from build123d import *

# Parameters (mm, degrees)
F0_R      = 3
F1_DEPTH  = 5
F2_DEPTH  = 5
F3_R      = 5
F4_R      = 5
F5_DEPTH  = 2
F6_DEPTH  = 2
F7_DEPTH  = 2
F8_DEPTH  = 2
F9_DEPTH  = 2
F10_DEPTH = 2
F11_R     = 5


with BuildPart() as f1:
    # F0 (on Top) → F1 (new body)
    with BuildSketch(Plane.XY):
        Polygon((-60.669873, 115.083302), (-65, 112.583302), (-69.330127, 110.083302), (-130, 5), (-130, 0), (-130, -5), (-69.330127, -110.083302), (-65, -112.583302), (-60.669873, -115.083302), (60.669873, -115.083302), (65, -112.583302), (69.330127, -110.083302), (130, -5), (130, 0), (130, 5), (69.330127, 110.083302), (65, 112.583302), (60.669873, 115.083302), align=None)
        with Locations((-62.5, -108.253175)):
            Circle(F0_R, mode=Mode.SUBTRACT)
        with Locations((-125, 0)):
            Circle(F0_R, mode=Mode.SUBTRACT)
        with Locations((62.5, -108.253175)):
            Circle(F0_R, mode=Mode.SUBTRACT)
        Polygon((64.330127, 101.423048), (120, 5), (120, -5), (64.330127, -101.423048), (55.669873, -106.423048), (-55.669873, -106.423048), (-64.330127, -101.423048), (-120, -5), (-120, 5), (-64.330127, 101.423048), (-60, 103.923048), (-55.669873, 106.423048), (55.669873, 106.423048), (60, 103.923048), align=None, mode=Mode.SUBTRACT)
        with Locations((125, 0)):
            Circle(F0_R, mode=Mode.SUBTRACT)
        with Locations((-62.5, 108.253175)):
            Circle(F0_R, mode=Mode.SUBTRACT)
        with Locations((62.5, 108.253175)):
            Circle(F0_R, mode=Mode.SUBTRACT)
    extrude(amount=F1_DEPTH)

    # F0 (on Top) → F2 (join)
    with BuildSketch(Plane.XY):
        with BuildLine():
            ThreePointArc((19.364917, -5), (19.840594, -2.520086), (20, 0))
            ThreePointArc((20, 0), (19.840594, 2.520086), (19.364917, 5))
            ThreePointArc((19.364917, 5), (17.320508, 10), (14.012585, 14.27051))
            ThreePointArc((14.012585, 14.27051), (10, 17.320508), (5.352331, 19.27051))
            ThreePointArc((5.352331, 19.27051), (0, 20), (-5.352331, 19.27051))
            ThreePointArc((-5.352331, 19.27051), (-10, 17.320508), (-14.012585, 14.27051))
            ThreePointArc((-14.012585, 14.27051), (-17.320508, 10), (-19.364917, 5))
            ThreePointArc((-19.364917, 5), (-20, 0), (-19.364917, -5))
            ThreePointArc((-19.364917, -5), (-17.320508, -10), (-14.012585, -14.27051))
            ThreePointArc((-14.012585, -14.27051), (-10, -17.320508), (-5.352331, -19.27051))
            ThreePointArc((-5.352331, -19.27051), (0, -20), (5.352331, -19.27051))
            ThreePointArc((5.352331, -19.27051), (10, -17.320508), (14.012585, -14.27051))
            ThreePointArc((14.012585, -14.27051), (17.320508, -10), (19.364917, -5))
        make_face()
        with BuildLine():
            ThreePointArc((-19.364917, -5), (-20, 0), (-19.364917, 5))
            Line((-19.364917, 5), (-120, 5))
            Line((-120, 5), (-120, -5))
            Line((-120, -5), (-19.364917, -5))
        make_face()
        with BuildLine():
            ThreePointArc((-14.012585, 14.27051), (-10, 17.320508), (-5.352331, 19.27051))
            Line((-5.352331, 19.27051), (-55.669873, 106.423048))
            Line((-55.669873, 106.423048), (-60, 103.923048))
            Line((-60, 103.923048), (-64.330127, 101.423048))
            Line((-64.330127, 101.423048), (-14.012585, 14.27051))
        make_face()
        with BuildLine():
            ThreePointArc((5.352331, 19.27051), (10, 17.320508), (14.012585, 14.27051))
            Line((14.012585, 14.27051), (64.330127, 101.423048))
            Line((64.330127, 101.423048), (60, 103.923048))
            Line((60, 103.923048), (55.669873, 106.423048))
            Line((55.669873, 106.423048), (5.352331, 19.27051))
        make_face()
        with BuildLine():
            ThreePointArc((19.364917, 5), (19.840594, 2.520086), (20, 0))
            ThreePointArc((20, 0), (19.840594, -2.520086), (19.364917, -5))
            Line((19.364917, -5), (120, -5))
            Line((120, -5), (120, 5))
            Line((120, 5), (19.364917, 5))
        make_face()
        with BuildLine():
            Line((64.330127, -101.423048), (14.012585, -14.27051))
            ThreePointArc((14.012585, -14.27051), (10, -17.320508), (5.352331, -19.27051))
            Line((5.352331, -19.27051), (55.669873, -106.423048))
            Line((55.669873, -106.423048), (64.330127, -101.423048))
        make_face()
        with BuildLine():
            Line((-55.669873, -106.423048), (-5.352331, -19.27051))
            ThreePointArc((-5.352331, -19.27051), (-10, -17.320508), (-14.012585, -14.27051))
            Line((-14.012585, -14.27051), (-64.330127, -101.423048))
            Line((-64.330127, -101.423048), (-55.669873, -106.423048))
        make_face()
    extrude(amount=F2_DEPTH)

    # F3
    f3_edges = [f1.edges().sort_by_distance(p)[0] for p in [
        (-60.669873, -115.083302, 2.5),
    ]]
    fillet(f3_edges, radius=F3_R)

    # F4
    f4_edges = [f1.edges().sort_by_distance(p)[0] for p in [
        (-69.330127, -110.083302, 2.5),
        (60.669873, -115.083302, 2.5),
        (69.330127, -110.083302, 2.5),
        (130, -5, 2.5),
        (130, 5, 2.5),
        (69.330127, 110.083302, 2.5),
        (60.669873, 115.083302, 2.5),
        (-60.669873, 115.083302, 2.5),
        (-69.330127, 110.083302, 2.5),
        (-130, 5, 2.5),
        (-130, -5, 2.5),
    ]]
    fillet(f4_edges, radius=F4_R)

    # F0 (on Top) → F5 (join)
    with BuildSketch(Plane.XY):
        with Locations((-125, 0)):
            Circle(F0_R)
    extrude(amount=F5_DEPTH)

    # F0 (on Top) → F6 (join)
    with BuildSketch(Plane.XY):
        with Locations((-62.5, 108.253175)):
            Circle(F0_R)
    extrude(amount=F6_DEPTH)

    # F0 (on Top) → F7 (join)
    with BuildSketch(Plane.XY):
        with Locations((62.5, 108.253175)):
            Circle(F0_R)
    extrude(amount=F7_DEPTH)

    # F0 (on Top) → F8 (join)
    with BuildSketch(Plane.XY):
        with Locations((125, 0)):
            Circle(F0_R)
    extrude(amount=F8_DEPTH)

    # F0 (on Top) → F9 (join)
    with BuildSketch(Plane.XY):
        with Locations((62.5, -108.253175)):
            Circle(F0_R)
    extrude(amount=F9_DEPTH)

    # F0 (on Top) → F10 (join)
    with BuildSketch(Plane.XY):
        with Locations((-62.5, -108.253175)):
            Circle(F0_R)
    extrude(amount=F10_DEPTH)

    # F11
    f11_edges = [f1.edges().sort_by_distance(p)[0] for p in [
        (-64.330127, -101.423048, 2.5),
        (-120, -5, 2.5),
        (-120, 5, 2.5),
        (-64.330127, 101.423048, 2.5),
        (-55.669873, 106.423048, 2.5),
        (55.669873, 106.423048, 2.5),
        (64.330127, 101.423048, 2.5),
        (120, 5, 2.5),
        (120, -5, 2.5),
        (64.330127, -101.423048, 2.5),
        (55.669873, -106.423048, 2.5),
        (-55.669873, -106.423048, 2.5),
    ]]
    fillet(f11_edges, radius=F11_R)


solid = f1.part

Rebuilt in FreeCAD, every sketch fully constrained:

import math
import FreeCAD as App
import Part
import Sketcher
from FreeCAD import Vector
Q = App.Units.Quantity


def edges_at(feature, points):
    """Names of the edges that pass closest to the given points."""
    edges = feature.Shape.Edges
    near = lambda p: min(range(len(edges)), key=lambda i: edges[i].distToShape(Part.Vertex(*p))[0])
    return sorted({f"Edge{near(p) + 1}" for p in points})


def add_polygon(sketch, points):
    """Adds a closed chain of lines whose ends are joined by coincident constraints."""
    first, n = sketch.GeometryCount, len(points)
    for a, b in zip(points, points[1:] + points[:1]):
        sketch.addGeometry(Part.LineSegment(App.Vector(*a, 0), App.Vector(*b, 0)), False)
    for i in range(n):
        sketch.addConstraint(Sketcher.Constraint("Coincident", first + i, 2, first + (i + 1) % n, 1))

doc = App.newDocument("Part")
body = doc.addObject("PartDesign::Body", "Body")

# Sketch on XY plane
sketch1 = body.newObject("Sketcher::SketchObject", "Sketch")
sketch1.AttachmentSupport = (doc.getObject("XY_Plane"), [""])
sketch1.MapMode = "FlatFace"
add_polygon(sketch1, [(-60.7, 115.1), (-69.3, 110.1), (-130, 5), (-130, -5), (-69.3, -110.1), (-60.7, -115.1), (60.7, -115.1), (69.3, -110.1), (130, -5), (130, 5), (69.3, 110.1), (60.7, 115.1)])  # lines 0-11
sketch1.addGeometry(Part.Circle(Vector(-62.5, -108.3, 0), Vector(0, 0, 1), 3), False)  # 12
sketch1.addGeometry(Part.Circle(Vector(62.5, -108.3, 0), Vector(0, 0, 1), 3), False)  # 13
sketch1.addGeometry(Part.Circle(Vector(-125, 0, 0), Vector(0, 0, 1), 3), False)  # 14
sketch1.addGeometry(Part.Circle(Vector(-62.5, 108.3, 0), Vector(0, 0, 1), 3), False)  # 15
add_polygon(sketch1, [(55.7, 106.4), (64.3, 101.4), (120, 5), (120, -5), (64.3, -101.4), (55.7, -106.4), (-55.7, -106.4), (-64.3, -101.4), (-120, -5), (-120, 5), (-64.3, 101.4), (-55.7, 106.4)])  # lines 16-27
sketch1.addGeometry(Part.Circle(Vector(125, 0, 0), Vector(0, 0, 1), 3), False)  # 28
sketch1.addGeometry(Part.Circle(Vector(62.5, 108.3, 0), Vector(0, 0, 1), 3), False)  # 29
sketch1.addConstraint(Sketcher.Constraint("Vertical", 2))
sketch1.addConstraint(Sketcher.Constraint("Horizontal", 5))
sketch1.addConstraint(Sketcher.Constraint("Vertical", 8))
sketch1.addConstraint(Sketcher.Constraint("Horizontal", 11))
sketch1.addConstraint(Sketcher.Constraint("Vertical", 18))
sketch1.addConstraint(Sketcher.Constraint("Horizontal", 21))
sketch1.addConstraint(Sketcher.Constraint("Vertical", 24))
sketch1.addConstraint(Sketcher.Constraint("Horizontal", 27))
sketch1.addConstraint(Sketcher.Constraint("Equal", 12, 13))
sketch1.addConstraint(Sketcher.Constraint("Equal", 13, 14))
sketch1.addConstraint(Sketcher.Constraint("Equal", 14, 15))
sketch1.addConstraint(Sketcher.Constraint("Equal", 15, 28))
sketch1.addConstraint(Sketcher.Constraint("Equal", 28, 29))
sketch1.addConstraint(Sketcher.Constraint("Symmetric", 13, 3, 15, 3, -1, 1))
sketch1.addConstraint(Sketcher.Constraint("Symmetric", 14, 3, 28, 3, -1, 1))
sketch1.addConstraint(Sketcher.Constraint("Symmetric", 12, 3, 29, 3, -1, 1))
sketch1.addConstraint(Sketcher.Constraint("Symmetric", 0, 2, 6, 2, -1, 1))
sketch1.addConstraint(Sketcher.Constraint("Symmetric", 1, 2, 7, 2, -1, 1))
sketch1.addConstraint(Sketcher.Constraint("Symmetric", 3, 2, 9, 2, -1, 1))
sketch1.addConstraint(Sketcher.Constraint("Symmetric", 4, 2, 10, 2, -1, 1))
sketch1.addConstraint(Sketcher.Constraint("Symmetric", 16, 2, 22, 2, -1, 1))
sketch1.addConstraint(Sketcher.Constraint("Symmetric", 17, 2, 23, 2, -1, 1))
sketch1.addConstraint(Sketcher.Constraint("Symmetric", 19, 2, 25, 2, -1, 1))
sketch1.addConstraint(Sketcher.Constraint("Symmetric", 20, 2, 26, 2, -1, 1))
sketch1.addConstraint(Sketcher.Constraint("Symmetric", 12, 3, 13, 3, -2))
sketch1.addConstraint(Sketcher.Constraint("Symmetric", 3, 2, 6, 2, -2))
sketch1.addConstraint(Sketcher.Constraint("Symmetric", 19, 2, 22, 2, -2))
sketch1.addConstraint(Sketcher.Constraint("PointOnObject", 14, 3, -1))
sketch1.addConstraint(Sketcher.Constraint("Perpendicular", 0, 3))
sketch1.addConstraint(Sketcher.Constraint("Perpendicular", 1, 4))
sketch1.addConstraint(Sketcher.Constraint("Perpendicular", 3, 6))
sketch1.addConstraint(Sketcher.Constraint("Perpendicular", 6, 9))
sketch1.addConstraint(Sketcher.Constraint("Parallel", 10, 16))
sketch1.addConstraint(Sketcher.Constraint("Parallel", 9, 17))
sketch1.addConstraint(Sketcher.Constraint("Perpendicular", 16, 19))
sketch1.addConstraint(Sketcher.Constraint("Perpendicular", 17, 20))
sketch1.addConstraint(Sketcher.Constraint("Perpendicular", 19, 22))
sketch1.addConstraint(Sketcher.Constraint("Perpendicular", 22, 25))
sketch1.addConstraint(Sketcher.Constraint("Horizontal", 2, 2, 7, 2))
sketch1.addConstraint(Sketcher.Constraint("Horizontal", 8, 2, 17, 2))
sketch1.addConstraint(Sketcher.Constraint("Equal", 10, 16))
sketch1.addConstraint(Sketcher.Constraint("Diameter", 12, 6.0))
sketch1.addConstraint(Sketcher.Constraint("DistanceY", 2, 2, 2, 1, 10.0))
sketch1.addConstraint(Sketcher.Constraint("Angle", 0, Q("-150 deg")))
sketch1.addConstraint(Sketcher.Constraint("Distance", 0, 10.0))
sketch1.addConstraint(Sketcher.Constraint("DistanceX", 14, 3, -1, 1, 125.0))
sketch1.addConstraint(Sketcher.Constraint("DistanceX", 1, 2, -1, 1, 130.0))
sketch1.addConstraint(Sketcher.Constraint("DistanceX", -1, 1, 17, 2, 120.0))
sketch1.addConstraint(Sketcher.Constraint("DistanceX", 12, 3, 13, 3, 125.0))
sketch1.addConstraint(Sketcher.Constraint("DistanceX", 3, 2, 5, 2, 130.0))
sketch1.addConstraint(Sketcher.Constraint("DistanceX", 16, 2, 9, 2, 5.0))
sketch1.addConstraint(Sketcher.Constraint("DistanceY", 12, 3, 15, 3, 216.50635))
pad1 = body.newObject("PartDesign::Pad", "Pad")
pad1.Profile = sketch1
pad1.Length = 5

# Sketch on XY plane
sketch2 = body.newObject("Sketcher::SketchObject", "Sketch001")
sketch2.AttachmentSupport = (doc.getObject("XY_Plane"), [""])
sketch2.MapMode = "FlatFace"
sketch2.addGeometry(Part.ArcOfCircle(Part.Circle(Vector(0, 0, 0), Vector(0, 0, 1), 20), math.radians(14), math.radians(46)), False)
sketch2.addGeometry(Part.LineSegment(Vector(14, 14, 0), Vector(64, 101, 0)), False)
sketch2.addGeometry(Part.LineSegment(Vector(64, 101, 0), Vector(56, 106, 0)), False)
sketch2.addGeometry(Part.LineSegment(Vector(56, 106, 0), Vector(5, 19, 0)), False)
sketch2.addGeometry(Part.ArcOfCircle(Part.Circle(Vector(0, 0, 0), Vector(0, 0, 1), 20), math.radians(74), math.radians(106)), False)
sketch2.addGeometry(Part.LineSegment(Vector(-5, 19, 0), Vector(-56, 106, 0)), False)
sketch2.addGeometry(Part.LineSegment(Vector(-56, 106, 0), Vector(-64, 101, 0)), False)
sketch2.addGeometry(Part.LineSegment(Vector(-64, 101, 0), Vector(-14, 14, 0)), False)
sketch2.addGeometry(Part.ArcOfCircle(Part.Circle(Vector(0, 0, 0), Vector(0, 0, 1), 20), math.radians(134), math.radians(166)), False)
sketch2.addGeometry(Part.LineSegment(Vector(-19, 5, 0), Vector(-120, 5, 0)), False)
sketch2.addGeometry(Part.LineSegment(Vector(-120, 5, 0), Vector(-120, -5, 0)), False)
sketch2.addGeometry(Part.LineSegment(Vector(-120, -5, 0), Vector(-19, -5, 0)), False)
sketch2.addGeometry(Part.ArcOfCircle(Part.Circle(Vector(0, 0, 0), Vector(0, 0, 1), 20), math.radians(-166), math.radians(-134)), False)
sketch2.addGeometry(Part.LineSegment(Vector(-14, -14, 0), Vector(-64, -101, 0)), False)
sketch2.addGeometry(Part.LineSegment(Vector(-64, -101, 0), Vector(-56, -106, 0)), False)
sketch2.addGeometry(Part.LineSegment(Vector(-56, -106, 0), Vector(-5, -19, 0)), False)
sketch2.addGeometry(Part.ArcOfCircle(Part.Circle(Vector(0, 0, 0), Vector(0, 0, 1), 20), math.radians(-106), math.radians(-74)), False)
sketch2.addGeometry(Part.LineSegment(Vector(5, -19, 0), Vector(56, -106, 0)), False)
sketch2.addGeometry(Part.LineSegment(Vector(56, -106, 0), Vector(64, -101, 0)), False)
sketch2.addGeometry(Part.LineSegment(Vector(64, -101, 0), Vector(14, -14, 0)), False)
sketch2.addGeometry(Part.ArcOfCircle(Part.Circle(Vector(0, 0, 0), Vector(0, 0, 1), 20), math.radians(-46), math.radians(-14)), False)
sketch2.addGeometry(Part.LineSegment(Vector(19, -5, 0), Vector(120, -5, 0)), False)
sketch2.addGeometry(Part.LineSegment(Vector(120, -5, 0), Vector(120, 5, 0)), False)
sketch2.addGeometry(Part.LineSegment(Vector(120, 5, 0), Vector(19, 5, 0)), False)
sketch2.addConstraint(Sketcher.Constraint("Coincident", 0, 2, 1, 1))
sketch2.addConstraint(Sketcher.Constraint("Coincident", 1, 2, 2, 1))
sketch2.addConstraint(Sketcher.Constraint("Coincident", 2, 2, 3, 1))
sketch2.addConstraint(Sketcher.Constraint("Coincident", 3, 2, 4, 1))
sketch2.addConstraint(Sketcher.Constraint("Coincident", 4, 2, 5, 1))
sketch2.addConstraint(Sketcher.Constraint("Coincident", 5, 2, 6, 1))
sketch2.addConstraint(Sketcher.Constraint("Coincident", 6, 2, 7, 1))
sketch2.addConstraint(Sketcher.Constraint("Coincident", 7, 2, 8, 1))
sketch2.addConstraint(Sketcher.Constraint("Coincident", 8, 2, 9, 1))
sketch2.addConstraint(Sketcher.Constraint("Coincident", 9, 2, 10, 1))
sketch2.addConstraint(Sketcher.Constraint("Coincident", 10, 2, 11, 1))
sketch2.addConstraint(Sketcher.Constraint("Coincident", 11, 2, 12, 1))
sketch2.addConstraint(Sketcher.Constraint("Coincident", 12, 2, 13, 1))
sketch2.addConstraint(Sketcher.Constraint("Coincident", 13, 2, 14, 1))
sketch2.addConstraint(Sketcher.Constraint("Coincident", 14, 2, 15, 1))
sketch2.addConstraint(Sketcher.Constraint("Coincident", 15, 2, 16, 1))
sketch2.addConstraint(Sketcher.Constraint("Coincident", 16, 2, 17, 1))
sketch2.addConstraint(Sketcher.Constraint("Coincident", 17, 2, 18, 1))
sketch2.addConstraint(Sketcher.Constraint("Coincident", 18, 2, 19, 1))
sketch2.addConstraint(Sketcher.Constraint("Coincident", 19, 2, 20, 1))
sketch2.addConstraint(Sketcher.Constraint("Coincident", 20, 2, 21, 1))
sketch2.addConstraint(Sketcher.Constraint("Coincident", 21, 2, 22, 1))
sketch2.addConstraint(Sketcher.Constraint("Coincident", 22, 2, 23, 1))
sketch2.addConstraint(Sketcher.Constraint("Coincident", 23, 2, 0, 1))
sketch2.addConstraint(Sketcher.Constraint("Horizontal", 9))
sketch2.addConstraint(Sketcher.Constraint("Vertical", 10))
sketch2.addConstraint(Sketcher.Constraint("Horizontal", 11))
sketch2.addConstraint(Sketcher.Constraint("Horizontal", 21))
sketch2.addConstraint(Sketcher.Constraint("Vertical", 22))
sketch2.addConstraint(Sketcher.Constraint("Horizontal", 23))
sketch2.addConstraint(Sketcher.Constraint("Coincident", 0, 3, -1, 1))
sketch2.addConstraint(Sketcher.Constraint("Coincident", 4, 3, -1, 1))
sketch2.addConstraint(Sketcher.Constraint("Coincident", 8, 3, -1, 1))
sketch2.addConstraint(Sketcher.Constraint("Coincident", 12, 3, -1, 1))
sketch2.addConstraint(Sketcher.Constraint("Coincident", 16, 3, -1, 1))
sketch2.addConstraint(Sketcher.Constraint("Coincident", 20, 3, -1, 1))
sketch2.addConstraint(Sketcher.Constraint("Equal", 0, 4))
sketch2.addConstraint(Sketcher.Constraint("Equal", 4, 8))
sketch2.addConstraint(Sketcher.Constraint("Equal", 8, 12))
sketch2.addConstraint(Sketcher.Constraint("Equal", 12, 16))
sketch2.addConstraint(Sketcher.Constraint("Equal", 16, 20))
sketch2.addConstraint(Sketcher.Constraint("Symmetric", 1, 2, 13, 2, -1, 1))
sketch2.addConstraint(Sketcher.Constraint("Symmetric", 2, 2, 14, 2, -1, 1))
sketch2.addConstraint(Sketcher.Constraint("Symmetric", 5, 2, 17, 2, -1, 1))
sketch2.addConstraint(Sketcher.Constraint("Symmetric", 6, 2, 18, 2, -1, 1))
sketch2.addConstraint(Sketcher.Constraint("Symmetric", 9, 2, 21, 2, -1, 1))
sketch2.addConstraint(Sketcher.Constraint("Symmetric", 2, 2, 5, 2, -2))
sketch2.addConstraint(Sketcher.Constraint("Symmetric", 1, 2, 6, 2, -2))
sketch2.addConstraint(Sketcher.Constraint("Perpendicular", 1, 2))
sketch2.addConstraint(Sketcher.Constraint("Perpendicular", 2, 3))
sketch2.addConstraint(Sketcher.Constraint("Perpendicular", 5, 6))
sketch2.addConstraint(Sketcher.Constraint("Perpendicular", 6, 7))
sketch2.addConstraint(Sketcher.Constraint("Parallel", 3, 13))
sketch2.addConstraint(Sketcher.Constraint("Perpendicular", 14, 15))
sketch2.addConstraint(Sketcher.Constraint("Parallel", 7, 17))
sketch2.addConstraint(Sketcher.Constraint("Perpendicular", 18, 19))
sketch2.addConstraint(Sketcher.Constraint("Horizontal", 11, 2, 20, 2))
sketch2.addConstraint(Sketcher.Constraint("Horizontal", 9, 2, 22, 2))
sketch2.addConstraint(Sketcher.Constraint("Equal", 1, 3))
sketch2.addConstraint(Sketcher.Constraint("Radius", 4, 20.000002))
sketch2.addConstraint(Sketcher.Constraint("DistanceY", 10, 2, 10, 1, 10.0))
sketch2.addConstraint(Sketcher.Constraint("Angle", 1, Q("60 deg")))
sketch2.addConstraint(Sketcher.Constraint("Distance", 2, 10.0))
sketch2.addConstraint(Sketcher.Constraint("DistanceX", 9, 2, -1, 1, 120.0))
sketch2.addConstraint(Sketcher.Constraint("DistanceX", 0, 2, 1, 2, 50.317542))
pad2 = body.newObject("PartDesign::Pad", "Pad001")
pad2.Profile = sketch2
pad2.Length = 5
doc.recompute()

fillet = body.newObject("PartDesign::Fillet", "Fillet")
fillet.Base = (pad2, edges_at(pad2, [(-60.67, -115.083, 2.5)]))
fillet.Radius = 5
doc.recompute()

fillet2 = body.newObject("PartDesign::Fillet", "Fillet001")
fillet2.Base = (fillet, edges_at(fillet, [
    (-69.33, -110.083, 2.5),
    (60.67, -115.083, 2.5),
    (69.33, -110.083, 2.5),
    (130, -5, 2.5),
    (130, 5, 2.5),
    (69.33, 110.083, 2.5),
    (60.67, 115.083, 2.5),
    (-60.67, 115.083, 2.5),
    (-69.33, 110.083, 2.5),
    (-130, 5, 2.5),
    (-130, -5, 2.5),
]))
fillet2.Radius = 5

# Sketch on XY plane
sketch3 = body.newObject("Sketcher::SketchObject", "Sketch002")
sketch3.AttachmentSupport = (doc.getObject("XY_Plane"), [""])
sketch3.MapMode = "FlatFace"
sketch3.addGeometry(Part.Circle(Vector(-125, 0, 0), Vector(0, 0, 1), 3), False)
sketch3.addConstraint(Sketcher.Constraint("PointOnObject", 0, 3, -1))
sketch3.addConstraint(Sketcher.Constraint("Diameter", 0, 6.0))
sketch3.addConstraint(Sketcher.Constraint("DistanceX", 0, 3, -1, 1, 125.0))
pad3 = body.newObject("PartDesign::Pad", "Pad002")
pad3.Profile = sketch3
pad3.Length = 2

# Sketch on XY plane
sketch4 = body.newObject("Sketcher::SketchObject", "Sketch003")
sketch4.AttachmentSupport = (doc.getObject("XY_Plane"), [""])
sketch4.MapMode = "FlatFace"
sketch4.addGeometry(Part.Circle(Vector(-62.5, 108.3, 0), Vector(0, 0, 1), 3), False)
sketch4.addConstraint(Sketcher.Constraint("Diameter", 0, 6.0))
sketch4.addConstraint(Sketcher.Constraint("DistanceX", 0, 3, -1, 1, 62.5))
sketch4.addConstraint(Sketcher.Constraint("DistanceY", -1, 1, 0, 3, 108.253175))
pad4 = body.newObject("PartDesign::Pad", "Pad003")
pad4.Profile = sketch4
pad4.Length = 2

# Sketch on XY plane
sketch5 = body.newObject("Sketcher::SketchObject", "Sketch004")
sketch5.AttachmentSupport = (doc.getObject("XY_Plane"), [""])
sketch5.MapMode = "FlatFace"
sketch5.addGeometry(Part.Circle(Vector(62.5, 108.3, 0), Vector(0, 0, 1), 3), False)
sketch5.addConstraint(Sketcher.Constraint("Diameter", 0, 6.0))
sketch5.addConstraint(Sketcher.Constraint("DistanceX", -1, 1, 0, 3, 62.5))
sketch5.addConstraint(Sketcher.Constraint("DistanceY", -1, 1, 0, 3, 108.253175))
pad5 = body.newObject("PartDesign::Pad", "Pad004")
pad5.Profile = sketch5
pad5.Length = 2

# Sketch on XY plane
sketch6 = body.newObject("Sketcher::SketchObject", "Sketch005")
sketch6.AttachmentSupport = (doc.getObject("XY_Plane"), [""])
sketch6.MapMode = "FlatFace"
sketch6.addGeometry(Part.Circle(Vector(125, 0, 0), Vector(0, 0, 1), 3), False)
sketch6.addConstraint(Sketcher.Constraint("PointOnObject", 0, 3, -1))
sketch6.addConstraint(Sketcher.Constraint("Diameter", 0, 6.0))
sketch6.addConstraint(Sketcher.Constraint("DistanceX", -1, 1, 0, 3, 125.0))
pad6 = body.newObject("PartDesign::Pad", "Pad005")
pad6.Profile = sketch6
pad6.Length = 2

# Sketch on XY plane
sketch7 = body.newObject("Sketcher::SketchObject", "Sketch006")
sketch7.AttachmentSupport = (doc.getObject("XY_Plane"), [""])
sketch7.MapMode = "FlatFace"
sketch7.addGeometry(Part.Circle(Vector(62.5, -108.3, 0), Vector(0, 0, 1), 3), False)
sketch7.addConstraint(Sketcher.Constraint("Diameter", 0, 6.0))
sketch7.addConstraint(Sketcher.Constraint("DistanceX", -1, 1, 0, 3, 62.5))
sketch7.addConstraint(Sketcher.Constraint("DistanceY", 0, 3, -1, 1, 108.253175))
pad7 = body.newObject("PartDesign::Pad", "Pad006")
pad7.Profile = sketch7
pad7.Length = 2

# Sketch on XY plane
sketch8 = body.newObject("Sketcher::SketchObject", "Sketch007")
sketch8.AttachmentSupport = (doc.getObject("XY_Plane"), [""])
sketch8.MapMode = "FlatFace"
sketch8.addGeometry(Part.Circle(Vector(-62.5, -108.3, 0), Vector(0, 0, 1), 3), False)
sketch8.addConstraint(Sketcher.Constraint("Diameter", 0, 6.0))
sketch8.addConstraint(Sketcher.Constraint("DistanceX", 0, 3, -1, 1, 62.5))
sketch8.addConstraint(Sketcher.Constraint("DistanceY", 0, 3, -1, 1, 108.253175))
pad8 = body.newObject("PartDesign::Pad", "Pad007")
pad8.Profile = sketch8
pad8.Length = 2
doc.recompute()

fillet3 = body.newObject("PartDesign::Fillet", "Fillet002")
fillet3.Base = (pad8, edges_at(pad8, [
    (-64.33, -101.423, 2.5),
    (-120, -5, 2.5),
    (-120, 5, 2.5),
    (-64.33, 101.423, 2.5),
    (-55.67, 106.423, 2.5),
    (55.67, 106.423, 2.5),
    (64.33, 101.423, 2.5),
    (120, 5, 2.5),
    (120, -5, 2.5),
    (64.33, -101.423, 2.5),
    (55.67, -106.423, 2.5),
    (-55.67, -106.423, 2.5),
]))
fillet3.Radius = 5

doc.recompute()
